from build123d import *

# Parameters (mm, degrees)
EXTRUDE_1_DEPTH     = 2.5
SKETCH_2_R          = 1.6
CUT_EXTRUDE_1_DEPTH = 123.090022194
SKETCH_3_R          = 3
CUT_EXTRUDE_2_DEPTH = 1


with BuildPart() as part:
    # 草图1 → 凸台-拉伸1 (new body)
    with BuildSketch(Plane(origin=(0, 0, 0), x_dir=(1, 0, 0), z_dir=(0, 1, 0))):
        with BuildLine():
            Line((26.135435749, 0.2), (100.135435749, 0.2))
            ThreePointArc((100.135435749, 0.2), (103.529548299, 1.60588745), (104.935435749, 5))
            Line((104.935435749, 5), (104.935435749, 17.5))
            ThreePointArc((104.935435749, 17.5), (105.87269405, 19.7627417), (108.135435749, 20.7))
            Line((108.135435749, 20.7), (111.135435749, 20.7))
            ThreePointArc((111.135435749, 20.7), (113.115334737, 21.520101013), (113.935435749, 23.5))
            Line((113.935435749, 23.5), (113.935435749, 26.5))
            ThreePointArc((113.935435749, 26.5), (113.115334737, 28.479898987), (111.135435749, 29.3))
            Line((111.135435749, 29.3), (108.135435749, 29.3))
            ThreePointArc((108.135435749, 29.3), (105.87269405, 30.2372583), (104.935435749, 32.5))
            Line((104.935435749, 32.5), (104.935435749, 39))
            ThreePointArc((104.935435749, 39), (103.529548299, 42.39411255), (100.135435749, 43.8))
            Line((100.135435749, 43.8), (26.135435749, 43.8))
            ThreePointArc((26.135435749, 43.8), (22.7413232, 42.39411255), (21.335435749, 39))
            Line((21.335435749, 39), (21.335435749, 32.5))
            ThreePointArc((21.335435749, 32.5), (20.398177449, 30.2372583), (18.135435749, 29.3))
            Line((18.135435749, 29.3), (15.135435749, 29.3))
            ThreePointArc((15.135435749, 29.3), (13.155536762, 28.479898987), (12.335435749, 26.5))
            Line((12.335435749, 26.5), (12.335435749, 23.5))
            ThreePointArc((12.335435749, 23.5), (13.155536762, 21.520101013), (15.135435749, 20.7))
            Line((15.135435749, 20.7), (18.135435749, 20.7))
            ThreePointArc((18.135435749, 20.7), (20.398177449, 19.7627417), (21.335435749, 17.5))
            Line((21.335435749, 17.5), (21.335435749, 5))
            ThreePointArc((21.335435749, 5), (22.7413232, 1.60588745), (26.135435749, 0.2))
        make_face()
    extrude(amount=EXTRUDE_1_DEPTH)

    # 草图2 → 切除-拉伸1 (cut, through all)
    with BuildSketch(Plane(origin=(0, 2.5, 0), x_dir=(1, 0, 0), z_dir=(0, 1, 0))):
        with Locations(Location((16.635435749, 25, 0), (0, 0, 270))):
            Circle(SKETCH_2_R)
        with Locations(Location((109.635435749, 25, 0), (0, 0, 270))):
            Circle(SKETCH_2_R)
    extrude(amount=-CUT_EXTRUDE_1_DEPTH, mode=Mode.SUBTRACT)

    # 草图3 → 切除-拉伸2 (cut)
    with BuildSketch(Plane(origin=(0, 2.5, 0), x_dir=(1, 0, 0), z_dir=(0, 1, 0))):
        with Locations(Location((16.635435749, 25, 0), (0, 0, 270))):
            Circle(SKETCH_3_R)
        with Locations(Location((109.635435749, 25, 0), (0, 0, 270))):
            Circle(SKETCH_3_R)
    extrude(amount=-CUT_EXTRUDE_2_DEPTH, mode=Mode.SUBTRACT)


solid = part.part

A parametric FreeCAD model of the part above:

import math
import FreeCAD as App
import Part
import Sketcher

V = App.Vector

doc = App.newDocument("Part")
body = doc.addObject("PartDesign::Body", "Body")

# Sketch on XZ plane
sketch1 = body.newObject("Sketcher::SketchObject", "Sketch")
sketch1.AttachmentSupport = (doc.getObject("XZ_Plane"), [""])
sketch1.MapMode = "FlatFace"
sketch1.addGeometry(Part.LineSegment(V(26.1, -0.2, 0), V(100.1, -0.2, 0)), False)
sketch1.addGeometry(Part.ArcOfCircle(Part.Circle(V(100.1, -5, 0), V(0, 0, 1), 4.8), math.radians(0), math.radians(90)), False)
sketch1.addGeometry(Part.LineSegment(V(104.9, -5, 0), V(104.9, -17.5, 0)), False)
sketch1.addGeometry(Part.ArcOfCircle(Part.Circle(V(108.1, -17.5, 0), V(0, 0, 1), 3.2), math.radians(-180), math.radians(-90)), False)
sketch1.addGeometry(Part.LineSegment(V(108.1, -20.7, 0), V(111.1, -20.7, 0)), False)
sketch1.addGeometry(Part.ArcOfCircle(Part.Circle(V(111.1, -23.5, 0), V(0, 0, 1), 2.8), math.radians(0), math.radians(90)), False)
sketch1.addGeometry(Part.LineSegment(V(113.9, -23.5, 0), V(113.9, -26.5, 0)), False)
sketch1.addGeometry(Part.ArcOfCircle(Part.Circle(V(111.1, -26.5, 0), V(0, 0, 1), 2.8), math.radians(-90), math.radians(0)), False)
sketch1.addGeometry(Part.LineSegment(V(111.1, -29.3, 0), V(108.1, -29.3, 0)), False)
sketch1.addGeometry(Part.ArcOfCircle(Part.Circle(V(108.1, -32.5, 0), V(0, 0, 1), 3.2), math.radians(90), math.radians(180)), False)
sketch1.addGeometry(Part.LineSegment(V(104.9, -32.5, 0), V(104.9, -39, 0)), False)
sketch1.addGeometry(Part.ArcOfCircle(Part.Circle(V(100.1, -39, 0), V(0, 0, 1), 4.8), math.radians(-90), math.radians(0)), False)
sketch1.addGeometry(Part.LineSegment(V(100.1, -43.8, 0), V(26.1, -43.8, 0)), False)
sketch1.addGeometry(Part.ArcOfCircle(Part.Circle(V(26.1, -39, 0), V(0, 0, 1), 4.8), math.radians(-180), math.radians(-90)), False)
sketch1.addGeometry(Part.LineSegment(V(21.3, -39, 0), V(21.3, -32.5, 0)), False)
sketch1.addGeometry(Part.ArcOfCircle(Part.Circle(V(18.1, -32.5, 0), V(0, 0, 1), 3.2), math.radians(0), math.radians(90)), False)
sketch1.addGeometry(Part.LineSegment(V(18.1, -29.3, 0), V(15.1, -29.3, 0)), False)
sketch1.addGeometry(Part.ArcOfCircle(Part.Circle(V(15.1, -26.5, 0), V(0, 0, 1), 2.8), math.radians(-180), math.radians(-90)), False)
sketch1.addGeometry(Part.LineSegment(V(12.3, -26.5, 0), V(12.3, -23.5, 0)), False)
sketch1.addGeometry(Part.ArcOfCircle(Part.Circle(V(15.1, -23.5, 0), V(0, 0, 1), 2.8), math.radians(90), math.radians(180)), False)
sketch1.addGeometry(Part.LineSegment(V(15.1, -20.7, 0), V(18.1, -20.7, 0)), False)
sketch1.addGeometry(Part.ArcOfCircle(Part.Circle(V(18.1, -17.5, 0), V(0, 0, 1), 3.2), math.radians(-90), math.radians(0)), False)
sketch1.addGeometry(Part.LineSegment(V(21.3, -17.5, 0), V(21.3, -5, 0)), False)
sketch1.addGeometry(Part.ArcOfCircle(Part.Circle(V(26.1, -5, 0), V(0, 0, 1), 4.8), math.radians(90), math.radians(180)), False)
sketch1.addConstraint(Sketcher.Constraint("Tangent", 0, 2, 1, 2))
sketch1.addConstraint(Sketcher.Constraint("Tangent", 1, 1, 2, 1))
sketch1.addConstraint(Sketcher.Constraint("Tangent", 2, 2, 3, 1))
sketch1.addConstraint(Sketcher.Constraint("Tangent", 3, 2, 4, 1))
sketch1.addConstraint(Sketcher.Constraint("Tangent", 4, 2, 5, 2))
sketch1.addConstraint(Sketcher.Constraint("Tangent", 5, 1, 6, 1))
sketch1.addConstraint(Sketcher.Constraint("Tangent", 6, 2, 7, 2))
sketch1.addConstraint(Sketcher.Constraint("Tangent", 7, 1, 8, 1))
sketch1.addConstraint(Sketcher.Constraint("Tangent", 8, 2, 9, 1))
sketch1.addConstraint(Sketcher.Constraint("Tangent", 9, 2, 10, 1))
sketch1.addConstraint(Sketcher.Constraint("Tangent", 10, 2, 11, 2))
sketch1.addConstraint(Sketcher.Constraint("Tangent", 11, 1, 12, 1))
sketch1.addConstraint(Sketcher.Constraint("Tangent", 12, 2, 13, 2))
sketch1.addConstraint(Sketcher.Constraint("Tangent", 13, 1, 14, 1))
sketch1.addConstraint(Sketcher.Constraint("Tangent", 14, 2, 15, 1))
sketch1.addConstraint(Sketcher.Constraint("Tangent", 15, 2, 16, 1))
sketch1.addConstraint(Sketcher.Constraint("Tangent", 16, 2, 17, 2))
sketch1.addConstraint(Sketcher.Constraint("Tangent", 17, 1, 18, 1))
sketch1.addConstraint(Sketcher.Constraint("Tangent", 18, 2, 19, 2))
sketch1.addConstraint(Sketcher.Constraint("Tangent", 19, 1, 20, 1))
sketch1.addConstraint(Sketcher.Constraint("Tangent", 20, 2, 21, 1))
sketch1.addConstraint(Sketcher.Constraint("Tangent", 21, 2, 22, 1))
sketch1.addConstraint(Sketcher.Constraint("Tangent", 22, 2, 23, 2))
sketch1.addConstraint(Sketcher.Constraint("Tangent", 23, 1, 0, 1))
sketch1.addConstraint(Sketcher.Constraint("Horizontal", 0))
sketch1.addConstraint(Sketcher.Constraint("Vertical", 2))
sketch1.addConstraint(Sketcher.Constraint("Horizontal", 4))
sketch1.addConstraint(Sketcher.Constraint("Vertical", 6))
sketch1.addConstraint(Sketcher.Constraint("Horizontal", 8))
sketch1.addConstraint(Sketcher.Constraint("Vertical", 10))
sketch1.addConstraint(Sketcher.Constraint("Horizontal", 12))
sketch1.addConstraint(Sketcher.Constraint("Vertical", 14))
sketch1.addConstraint(Sketcher.Constraint("Horizontal", 16))
sketch1.addConstraint(Sketcher.Constraint("Vertical", 18))
sketch1.addConstraint(Sketcher.Constraint("Horizontal", 20))
sketch1.addConstraint(Sketcher.Constraint("Vertical", 22))
sketch1.addConstraint(Sketcher.Constraint("Equal", 5, 7))
sketch1.addConstraint(Sketcher.Constraint("Equal", 3, 9))
sketch1.addConstraint(Sketcher.Constraint("Equal", 1, 11))
sketch1.addConstraint(Sketcher.Constraint("Equal", 11, 13))
sketch1.addConstraint(Sketcher.Constraint("Equal", 9, 15))
sketch1.addConstraint(Sketcher.Constraint("Equal", 7, 17))
sketch1.addConstraint(Sketcher.Constraint("Equal", 17, 19))
sketch1.addConstraint(Sketcher.Constraint("Equal", 15, 21))
sketch1.addConstraint(Sketcher.Constraint("Equal", 13, 23))
sketch1.addConstraint(Sketcher.Constraint("Horizontal", 9, 3, 15, 3))
sketch1.addConstraint(Sketcher.Constraint("Horizontal", 5, 3, 19, 3))
sketch1.addConstraint(Sketcher.Constraint("Vertical", 3, 3, 9, 3))
sketch1.addConstraint(Sketcher.Constraint("Vertical", 15, 3, 21, 3))
sketch1.addConstraint(Sketcher.Constraint("Equal", 8, 16))
sketch1.addConstraint(Sketcher.Constraint("Equal", 20, 6))
sketch1.addConstraint(Sketcher.Constraint("Radius", 1, 4.8))
sketch1.addConstraint(Sketcher.Constraint("Radius", 3, 3.2))
sketch1.addConstraint(Sketcher.Constraint("Radius", 5, 2.8))
sketch1.addConstraint(Sketcher.Constraint("DistanceX", 0, 1, 0, 2, 74.0))
sketch1.addConstraint(Sketcher.Constraint("DistanceX", 4, 1, 4, 2, 3.0))
sketch1.addConstraint(Sketcher.Constraint("DistanceY", 2, 2, 2, 1, 12.5))
sketch1.addConstraint(Sketcher.Constraint("DistanceY", 10, 2, 10, 1, 6.5))
sketch1.addConstraint(Sketcher.Constraint("DistanceY", 1, 3, -1, 1, 5.0))
sketch1.addConstraint(Sketcher.Constraint("DistanceX", -1, 1, 1, 3, 100.135436))
pad1 = body.newObject("PartDesign::Pad", "Pad")
pad1.Profile = sketch1
pad1.Length = 2.5
pad1.Reversed = True

# Sketch on XZ plane
sketch2 = body.newObject("Sketcher::SketchObject", "Sketch001")
sketch2.AttachmentSupport = (doc.getObject("XZ_Plane"), [""])
sketch2.MapMode = "FlatFace"
sketch2.AttachmentOffset = App.Placement(V(0, 0, -2.5), App.Rotation())
sketch2.addGeometry(Part.Circle(V(16.6, -25, 0), V(0, 0, 1), 1.6), False)
sketch2.addGeometry(Part.Circle(V(109.6, -25, 0), V(0, 0, 1), 1.6), False)
sketch2.addConstraint(Sketcher.Constraint("Equal", 0, 1))
sketch2.addConstraint(Sketcher.Constraint("Horizontal", 0, 3, 1, 3))
sketch2.addConstraint(Sketcher.Constraint("Diameter", 0, 3.2))
sketch2.addConstraint(Sketcher.Constraint("DistanceY", 0, 3, -1, 1, 25.0))
sketch2.addConstraint(Sketcher.Constraint("DistanceX", 0, 3, 1, 3, 93.0))
sketch2.addConstraint(Sketcher.Constraint("DistanceX", -1, 1, 0, 3, 16.635436))
pocket1 = body.newObject("PartDesign::Pocket", "Pocket")
pocket1.Profile = sketch2
pocket1.Type = "ThroughAll"
pocket1.Reversed = True

# Sketch on XZ plane
sketch3 = body.newObject("Sketcher::SketchObject", "Sketch002")
sketch3.AttachmentSupport = (doc.getObject("XZ_Plane"), [""])
sketch3.MapMode = "FlatFace"
sketch3.AttachmentOffset = App.Placement(V(0, 0, -2.5), App.Rotation())
sketch3.addGeometry(Part.Circle(V(16.6, -25, 0), V(0, 0, 1), 3), False)
sketch3.addGeometry(Part.Circle(V(109.6, -25, 0), V(0, 0, 1), 3), False)
sketch3.addConstraint(Sketcher.Constraint("Equal", 0, 1))
sketch3.addConstraint(Sketcher.Constraint("Horizontal", 0, 3, 1, 3))
sketch3.addConstraint(Sketcher.Constraint("Diameter", 0, 6.0))
sketch3.addConstraint(Sketcher.Constraint("DistanceY", 0, 3, -1, 1, 25.0))
sketch3.addConstraint(Sketcher.Constraint("DistanceX", 0, 3, 1, 3, 93.0))
sketch3.addConstraint(Sketcher.Constraint("DistanceX", -1, 1, 0, 3, 16.635436))
pocket2 = body.newObject("PartDesign::Pocket", "Pocket001")
pocket2.Profile = sketch3
pocket2.Length = 1
pocket2.Reversed = True

doc.recompute()
